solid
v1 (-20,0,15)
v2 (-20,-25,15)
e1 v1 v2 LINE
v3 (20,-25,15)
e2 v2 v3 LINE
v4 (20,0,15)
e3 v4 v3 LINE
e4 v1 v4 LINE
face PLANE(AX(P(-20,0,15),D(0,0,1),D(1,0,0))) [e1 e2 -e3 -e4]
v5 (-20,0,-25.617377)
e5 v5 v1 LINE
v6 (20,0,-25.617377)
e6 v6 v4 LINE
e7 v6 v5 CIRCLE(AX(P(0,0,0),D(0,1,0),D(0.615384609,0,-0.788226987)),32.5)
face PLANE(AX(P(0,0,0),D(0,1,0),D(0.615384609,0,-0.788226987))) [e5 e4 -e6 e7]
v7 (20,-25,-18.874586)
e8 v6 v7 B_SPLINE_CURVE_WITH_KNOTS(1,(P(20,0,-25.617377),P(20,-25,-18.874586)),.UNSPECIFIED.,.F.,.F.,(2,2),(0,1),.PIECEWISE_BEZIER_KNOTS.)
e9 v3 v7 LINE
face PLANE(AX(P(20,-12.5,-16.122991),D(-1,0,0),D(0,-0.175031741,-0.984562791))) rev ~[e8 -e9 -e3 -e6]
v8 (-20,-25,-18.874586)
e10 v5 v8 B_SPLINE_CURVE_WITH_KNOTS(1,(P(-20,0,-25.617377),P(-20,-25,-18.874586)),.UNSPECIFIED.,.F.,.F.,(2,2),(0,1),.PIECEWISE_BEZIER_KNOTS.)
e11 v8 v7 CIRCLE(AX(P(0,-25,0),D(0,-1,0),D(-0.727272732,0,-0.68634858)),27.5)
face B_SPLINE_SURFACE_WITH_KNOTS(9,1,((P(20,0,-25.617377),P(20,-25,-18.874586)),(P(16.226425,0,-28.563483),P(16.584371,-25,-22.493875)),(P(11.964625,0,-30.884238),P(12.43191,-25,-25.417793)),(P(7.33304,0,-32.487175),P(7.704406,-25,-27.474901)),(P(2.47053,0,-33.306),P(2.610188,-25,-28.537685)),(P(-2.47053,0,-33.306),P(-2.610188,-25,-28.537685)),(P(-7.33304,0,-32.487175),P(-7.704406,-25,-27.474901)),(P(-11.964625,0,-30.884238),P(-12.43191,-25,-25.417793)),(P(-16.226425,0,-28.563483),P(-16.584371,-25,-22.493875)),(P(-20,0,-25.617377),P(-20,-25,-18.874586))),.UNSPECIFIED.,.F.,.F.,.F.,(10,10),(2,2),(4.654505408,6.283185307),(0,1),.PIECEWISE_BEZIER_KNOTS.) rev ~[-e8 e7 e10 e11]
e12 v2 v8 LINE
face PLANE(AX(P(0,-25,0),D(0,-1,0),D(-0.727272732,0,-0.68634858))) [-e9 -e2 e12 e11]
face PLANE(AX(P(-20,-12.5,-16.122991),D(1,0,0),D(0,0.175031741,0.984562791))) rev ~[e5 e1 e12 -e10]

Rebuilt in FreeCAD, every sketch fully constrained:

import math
import FreeCAD as App
import Part
import Sketcher

V = App.Vector

doc = App.newDocument("Part")
body = doc.addObject("PartDesign::Body", "Body")

# Sketch on XZ plane
sketch1 = body.newObject("Sketcher::SketchObject", "Sketch")
sketch1.AttachmentSupport = (doc.getObject("XZ_Plane"), [""])
sketch1.MapMode = "FlatFace"
sketch1.addGeometry([
    Part.LineSegment(V(-20, 15, 0), V(-20, -10, 0)),
    Part.LineSegment(V(-20, -10, 0), V(20, -10, 0)),
    Part.LineSegment(V(20, -10, 0), V(20, 15, 0)),
    Part.LineSegment(V(20, 15, 0), V(-20, 15, 0)),
], False)
sketch1.addConstraint([
    Sketcher.Constraint("Coincident", 0, 2, 1, 1),
    Sketcher.Constraint("Coincident", 1, 2, 2, 1),
    Sketcher.Constraint("Coincident", 2, 2, 3, 1),
    Sketcher.Constraint("Coincident", 3, 2, 0, 1),
    Sketcher.Constraint("Vertical", 0),
    Sketcher.Constraint("Horizontal", 1),
    Sketcher.Constraint("Vertical", 2),
    Sketcher.Constraint("Horizontal", 3),
    Sketcher.Constraint("DistanceX", 1, 1, 1, 2, 40.0),
    Sketcher.Constraint("DistanceY", 0, 2, 0, 1, 25.0),
    Sketcher.Constraint("DistanceX", 0, 2, -1, 1, 20.0),
    Sketcher.Constraint("DistanceY", 0, 2, -1, 1, 10.0),
])
pad1 = body.newObject("PartDesign::Pad", "Pad")
pad1.Profile = sketch1
pad1.Length = 25

# Sketch on XZ plane
sketch2 = body.newObject("Sketcher::SketchObject", "Sketch001")
sketch2.AttachmentSupport = (doc.getObject("XZ_Plane"), [""])
sketch2.MapMode = "FlatFace"
sketch2.addGeometry([
    Part.LineSegment(V(20, -10, 0), V(20, -25.617377, 0)),
    Part.ArcOfCircle(Part.Circle(V(0, 0, 0), V(0, 0, 1), 32.5), math.radians(-127.979872), math.radians(-52.020128)),
    Part.LineSegment(V(-20, -25.617377, 0), V(-20, -10, 0)),
    Part.LineSegment(V(-20, -10, 0), V(20, -10, 0)),
], False)
sketch2.addConstraint([
    Sketcher.Constraint("Coincident", 0, 2, 1, 2),
    Sketcher.Constraint("Coincident", 1, 1, 2, 1),
    Sketcher.Constraint("Coincident", 2, 2, 3, 1),
    Sketcher.Constraint("Coincident", 3, 2, 0, 1),
    Sketcher.Constraint("Vertical", 0),
    Sketcher.Constraint("Vertical", 2),
    Sketcher.Constraint("Horizontal", 3),
    Sketcher.Constraint("Coincident", 1, 3, -1, 1),
    Sketcher.Constraint("Horizontal", 0, 2, 1, 1),
    Sketcher.Constraint("Radius", 1, 32.5),
    Sketcher.Constraint("DistanceX", 3, 1, 3, 2, 40.0),
    Sketcher.Constraint("DistanceY", 2, 2, -1, 1, 10.0),
])

# Sketch on XZ plane
sketch3 = body.newObject("Sketcher::SketchObject", "Sketch002")
sketch3.AttachmentSupport = (doc.getObject("XZ_Plane"), [""])
sketch3.MapMode = "FlatFace"
sketch3.AttachmentOffset = App.Placement(V(0, 0, 25), App.Rotation())
sketch3.addGeometry([
    Part.LineSegment(V(-20, -10, 0), V(-20, -18.874586, 0)),
    Part.ArcOfCircle(Part.Circle(V(0, 0, 0), V(0, 0, 1), 27.5), math.radians(-136.658242), math.radians(-43.341758)),
    Part.LineSegment(V(20, -18.874586, 0), V(20, -10, 0)),
    Part.LineSegment(V(20, -10, 0), V(-20, -10, 0)),
], False)
sketch3.addConstraint([
    Sketcher.Constraint("Coincident", 0, 2, 1, 1),
    Sketcher.Constraint("Coincident", 1, 2, 2, 1),
    Sketcher.Constraint("Coincident", 2, 2, 3, 1),
    Sketcher.Constraint("Coincident", 3, 2, 0, 1),
    Sketcher.Constraint("Vertical", 0),
    Sketcher.Constraint("Vertical", 2),
    Sketcher.Constraint("Horizontal", 3),
    Sketcher.Constraint("Coincident", 1, 3, -1, 1),
    Sketcher.Constraint("Horizontal", 0, 2, 1, 2),
    Sketcher.Constraint("Radius", 1, 27.5),
    Sketcher.Constraint("DistanceX", 3, 2, 3, 1, 40.0),
    Sketcher.Constraint("DistanceY", 2, 2, -1, 1, 10.0),
])

additiveloft = body.newObject("PartDesign::AdditiveLoft", "AdditiveLoft")
additiveloft.Profile = sketch2
additiveloft.Sections = [sketch3]

doc.recompute()
